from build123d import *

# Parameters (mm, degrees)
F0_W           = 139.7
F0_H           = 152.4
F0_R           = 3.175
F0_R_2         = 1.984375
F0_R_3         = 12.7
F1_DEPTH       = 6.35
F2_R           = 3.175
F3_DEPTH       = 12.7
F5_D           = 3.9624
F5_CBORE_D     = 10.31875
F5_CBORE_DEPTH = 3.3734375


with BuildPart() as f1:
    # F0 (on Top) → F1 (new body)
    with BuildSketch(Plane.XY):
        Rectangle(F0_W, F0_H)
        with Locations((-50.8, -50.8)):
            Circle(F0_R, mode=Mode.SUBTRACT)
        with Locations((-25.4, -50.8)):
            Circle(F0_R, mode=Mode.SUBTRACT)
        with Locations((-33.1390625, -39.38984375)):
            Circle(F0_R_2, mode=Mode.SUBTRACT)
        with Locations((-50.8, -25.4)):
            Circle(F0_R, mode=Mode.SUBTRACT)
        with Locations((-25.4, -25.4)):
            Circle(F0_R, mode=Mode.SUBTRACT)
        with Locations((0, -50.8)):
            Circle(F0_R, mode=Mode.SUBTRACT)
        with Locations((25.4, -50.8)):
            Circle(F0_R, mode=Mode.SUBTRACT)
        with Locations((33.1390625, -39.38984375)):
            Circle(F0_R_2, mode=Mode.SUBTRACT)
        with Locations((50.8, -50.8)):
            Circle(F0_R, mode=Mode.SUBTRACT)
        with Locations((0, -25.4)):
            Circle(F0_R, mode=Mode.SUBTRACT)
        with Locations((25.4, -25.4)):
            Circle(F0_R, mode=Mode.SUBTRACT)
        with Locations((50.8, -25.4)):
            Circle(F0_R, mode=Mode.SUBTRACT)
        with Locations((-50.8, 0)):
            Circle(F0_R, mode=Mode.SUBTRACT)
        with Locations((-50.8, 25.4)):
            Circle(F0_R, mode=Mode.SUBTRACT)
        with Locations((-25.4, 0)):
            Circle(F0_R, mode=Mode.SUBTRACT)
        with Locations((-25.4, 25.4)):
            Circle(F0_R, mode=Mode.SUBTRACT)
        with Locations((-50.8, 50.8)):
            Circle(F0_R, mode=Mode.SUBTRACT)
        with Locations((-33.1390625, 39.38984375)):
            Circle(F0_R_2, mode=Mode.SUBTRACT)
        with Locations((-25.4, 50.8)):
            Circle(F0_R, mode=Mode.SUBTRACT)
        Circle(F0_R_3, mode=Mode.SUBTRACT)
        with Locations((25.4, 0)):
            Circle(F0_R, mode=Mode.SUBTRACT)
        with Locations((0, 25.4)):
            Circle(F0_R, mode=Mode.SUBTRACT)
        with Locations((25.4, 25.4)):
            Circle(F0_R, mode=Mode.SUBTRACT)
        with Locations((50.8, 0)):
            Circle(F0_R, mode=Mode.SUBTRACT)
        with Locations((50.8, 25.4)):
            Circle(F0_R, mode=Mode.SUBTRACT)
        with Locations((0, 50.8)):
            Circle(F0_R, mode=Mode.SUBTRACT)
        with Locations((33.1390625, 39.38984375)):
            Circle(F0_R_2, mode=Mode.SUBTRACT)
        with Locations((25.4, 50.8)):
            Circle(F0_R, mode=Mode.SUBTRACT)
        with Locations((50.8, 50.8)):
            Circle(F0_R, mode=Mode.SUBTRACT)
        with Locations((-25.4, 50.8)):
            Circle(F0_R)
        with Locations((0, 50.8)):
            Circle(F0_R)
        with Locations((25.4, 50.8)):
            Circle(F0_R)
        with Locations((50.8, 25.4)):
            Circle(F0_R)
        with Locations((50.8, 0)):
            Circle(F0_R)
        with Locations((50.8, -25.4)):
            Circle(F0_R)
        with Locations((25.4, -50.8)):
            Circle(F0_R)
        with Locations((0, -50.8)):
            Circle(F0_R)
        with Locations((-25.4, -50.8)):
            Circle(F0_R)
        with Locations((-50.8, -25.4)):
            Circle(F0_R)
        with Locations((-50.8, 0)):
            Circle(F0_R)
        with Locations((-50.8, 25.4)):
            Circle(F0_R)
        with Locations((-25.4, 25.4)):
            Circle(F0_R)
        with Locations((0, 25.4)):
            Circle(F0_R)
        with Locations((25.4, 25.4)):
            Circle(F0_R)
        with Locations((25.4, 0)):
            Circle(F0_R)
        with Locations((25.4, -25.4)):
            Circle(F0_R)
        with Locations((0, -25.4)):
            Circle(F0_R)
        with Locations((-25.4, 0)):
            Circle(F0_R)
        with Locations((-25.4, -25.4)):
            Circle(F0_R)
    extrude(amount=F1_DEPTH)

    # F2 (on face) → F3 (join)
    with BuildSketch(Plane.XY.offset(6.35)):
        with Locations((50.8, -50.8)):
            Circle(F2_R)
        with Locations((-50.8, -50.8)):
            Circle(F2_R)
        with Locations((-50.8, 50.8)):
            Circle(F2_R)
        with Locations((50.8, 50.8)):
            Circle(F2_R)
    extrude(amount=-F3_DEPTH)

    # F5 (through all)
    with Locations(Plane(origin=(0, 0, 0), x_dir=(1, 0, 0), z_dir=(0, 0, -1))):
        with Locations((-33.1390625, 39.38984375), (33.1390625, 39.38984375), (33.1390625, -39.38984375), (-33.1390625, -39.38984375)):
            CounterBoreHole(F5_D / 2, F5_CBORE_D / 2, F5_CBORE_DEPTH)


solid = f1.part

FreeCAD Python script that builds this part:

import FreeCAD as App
import Part
import Sketcher
from FreeCAD import Vector
Q = App.Units.Quantity

doc = App.newDocument("Part")
body = doc.addObject("PartDesign::Body", "Body")

# Sketch on XY plane
sketch1 = body.newObject("Sketcher::SketchObject", "Sketch")
sketch1.AttachmentSupport = (doc.getObject("XY_Plane"), [""])
sketch1.MapMode = "FlatFace"
sketch1.addGeometry([
    Part.LineSegment(Vector(-69.85, 76.2, 0), Vector(-69.85, -76.2, 0)),  # 0
    Part.LineSegment(Vector(-69.85, -76.2, 0), Vector(69.85, -76.2, 0)),  # 1
    Part.LineSegment(Vector(69.85, -76.2, 0), Vector(69.85, 76.2, 0)),  # 2
    Part.LineSegment(Vector(69.85, 76.2, 0), Vector(-69.85, 76.2, 0)),  # 3
    Part.Circle(Vector(-50.8, -50.8, 0), Vector(0, 0, 1), 3.175),  # 4
    Part.Circle(Vector(-33.139063, -39.389844, 0), Vector(0, 0, 1), 1.984375),  # 5
    Part.Circle(Vector(50.8, -50.8, 0), Vector(0, 0, 1), 3.175),  # 6
    Part.Circle(Vector(33.139063, -39.389844, 0), Vector(0, 0, 1), 1.984375),  # 7
    Part.Circle(Vector(-33.139063, 39.389844, 0), Vector(0, 0, 1), 1.984375),  # 8
    Part.Circle(Vector(-50.8, 50.8, 0), Vector(0, 0, 1), 3.175),  # 9
    Part.Circle(Vector(0, 0, 0), Vector(0, 0, 1), 12.7),  # 10
    Part.Circle(Vector(33.139063, 39.389844, 0), Vector(0, 0, 1), 1.984375),  # 11
    Part.Circle(Vector(50.8, 50.8, 0), Vector(0, 0, 1), 3.175),  # 12
], False)
sketch1.addConstraint([
    Sketcher.Constraint("Coincident", 0, 2, 1, 1),
    Sketcher.Constraint("Coincident", 1, 2, 2, 1),
    Sketcher.Constraint("Coincident", 2, 2, 3, 1),
    Sketcher.Constraint("Coincident", 3, 2, 0, 1),
    Sketcher.Constraint("Vertical", 0),
    Sketcher.Constraint("Horizontal", 1),
    Sketcher.Constraint("Vertical", 2),
    Sketcher.Constraint("Horizontal", 3),
    Sketcher.Constraint("Coincident", 10, 3, -1, 1),
    Sketcher.Constraint("Equal", 4, 6),
    Sketcher.Constraint("Equal", 5, 7),
    Sketcher.Constraint("Equal", 7, 8),
    Sketcher.Constraint("Equal", 6, 9),
    Sketcher.Constraint("Equal", 8, 11),
    Sketcher.Constraint("Equal", 9, 12),
    Sketcher.Constraint("Symmetric", 7, 3, 8, 3, -1, 1),
    Sketcher.Constraint("Symmetric", 6, 3, 9, 3, -1, 1),
    Sketcher.Constraint("Symmetric", 5, 3, 11, 3, -1, 1),
    Sketcher.Constraint("Symmetric", 4, 3, 12, 3, -1, 1),
    Sketcher.Constraint("Symmetric", 0, 2, 2, 2, -1, 1),
    Sketcher.Constraint("Symmetric", 4, 3, 6, 3, -2),
    Sketcher.Constraint("Symmetric", 5, 3, 7, 3, -2),
    Sketcher.Constraint("Diameter", 10, Q("1 in")),
    Sketcher.Constraint("Diameter", 4, Q("0.25 in")),
    Sketcher.Constraint("DistanceY", 0, 2, 0, 1, Q("6 in")),
    Sketcher.Constraint("Diameter", 5, Q("0.15625 in")),
    Sketcher.Constraint("DistanceX", 1, 1, 1, 2, Q("5.5 in")),
    Sketcher.Constraint("DistanceX", 4, 3, -1, 1, Q("2 in")),
    Sketcher.Constraint("DistanceY", 4, 3, -1, 1, Q("2 in")),
    Sketcher.Constraint("DistanceX", 5, 3, 7, 3, Q("2.609375 in")),
    Sketcher.Constraint("DistanceY", 5, 3, -1, 1, Q("39.389844 mm")),
])
pad1 = body.newObject("PartDesign::Pad", "Pad")
pad1.Profile = sketch1
pad1.Length = Q("0.25 in")

# Sketch on XY plane
sketch2 = body.newObject("Sketcher::SketchObject", "Sketch001")
sketch2.AttachmentSupport = (doc.getObject("XY_Plane"), [""])
sketch2.MapMode = "FlatFace"
sketch2.AttachmentOffset = App.Placement(Vector(0, 0, 0.25 * 25.4), App.Rotation())
sketch2.addGeometry([
    Part.Circle(Vector(50.8, -50.8, 0), Vector(0, 0, 1), 3.175),
    Part.Circle(Vector(-50.8, -50.8, 0), Vector(0, 0, 1), 3.175),
    Part.Circle(Vector(-50.8, 50.8, 0), Vector(0, 0, 1), 3.175),
    Part.Circle(Vector(50.8, 50.8, 0), Vector(0, 0, 1), 3.175),
], False)
sketch2.addConstraint([
    Sketcher.Constraint("Equal", 0, 1),
    Sketcher.Constraint("Equal", 1, 2),
    Sketcher.Constraint("Equal", 2, 3),
    Sketcher.Constraint("Symmetric", 0, 3, 2, 3, -1, 1),
    Sketcher.Constraint("Symmetric", 1, 3, 3, 3, -1, 1),
    Sketcher.Constraint("Symmetric", 0, 3, 1, 3, -2),
    Sketcher.Constraint("Diameter", 0, Q("0.25 in")),
    Sketcher.Constraint("DistanceX", -1, 1, 0, 3, Q("2 in")),
    Sketcher.Constraint("DistanceY", 0, 3, -1, 1, Q("2 in")),
])
pad2 = body.newObject("PartDesign::Pad", "Pad001")
pad2.Profile = sketch2
pad2.Length = Q("0.5 in")
pad2.Reversed = True

# Sketch on XY plane
sketch3 = body.newObject("Sketcher::SketchObject", "Sketch002")
sketch3.AttachmentSupport = (doc.getObject("XY_Plane"), [""])
sketch3.MapMode = "FlatFace"
sketch3.addGeometry([
    Part.Circle(Vector(-33.139063, -39.389844, 0), Vector(0, 0, 1), 1.9812),
    Part.Circle(Vector(33.139063, -39.389844, 0), Vector(0, 0, 1), 1.9812),
    Part.Circle(Vector(33.139063, 39.389844, 0), Vector(0, 0, 1), 1.9812),
    Part.Circle(Vector(-33.139063, 39.389844, 0), Vector(0, 0, 1), 1.9812),
], False)
sketch3.addConstraint([
    Sketcher.Constraint("Equal", 0, 1),
    Sketcher.Constraint("Equal", 1, 2),
    Sketcher.Constraint("Equal", 2, 3),
    Sketcher.Constraint("Symmetric", 0, 3, 2, 3, -1, 1),
    Sketcher.Constraint("Symmetric", 1, 3, 3, 3, -1, 1),
    Sketcher.Constraint("Symmetric", 0, 3, 1, 3, -2),
    Sketcher.Constraint("Diameter", 0, Q("0.156 in")),
    Sketcher.Constraint("DistanceX", 0, 3, 1, 3, Q("2.609375 in")),
    Sketcher.Constraint("DistanceY", 0, 3, -1, 1, Q("39.389844 mm")),
])
doc.recompute()
hole = body.newObject("PartDesign::Hole", "Hole")
hole.Profile = sketch3
hole.ThreadType = "None"
hole.Diameter = Q("0.156 in")
hole.DepthType = "ThroughAll"
hole.HoleCutType = "Counterbore"
hole.HoleCutDiameter = Q("0.40625 in")
hole.HoleCutDepth = 3.373438
hole.Reversed = True

doc.recompute()
